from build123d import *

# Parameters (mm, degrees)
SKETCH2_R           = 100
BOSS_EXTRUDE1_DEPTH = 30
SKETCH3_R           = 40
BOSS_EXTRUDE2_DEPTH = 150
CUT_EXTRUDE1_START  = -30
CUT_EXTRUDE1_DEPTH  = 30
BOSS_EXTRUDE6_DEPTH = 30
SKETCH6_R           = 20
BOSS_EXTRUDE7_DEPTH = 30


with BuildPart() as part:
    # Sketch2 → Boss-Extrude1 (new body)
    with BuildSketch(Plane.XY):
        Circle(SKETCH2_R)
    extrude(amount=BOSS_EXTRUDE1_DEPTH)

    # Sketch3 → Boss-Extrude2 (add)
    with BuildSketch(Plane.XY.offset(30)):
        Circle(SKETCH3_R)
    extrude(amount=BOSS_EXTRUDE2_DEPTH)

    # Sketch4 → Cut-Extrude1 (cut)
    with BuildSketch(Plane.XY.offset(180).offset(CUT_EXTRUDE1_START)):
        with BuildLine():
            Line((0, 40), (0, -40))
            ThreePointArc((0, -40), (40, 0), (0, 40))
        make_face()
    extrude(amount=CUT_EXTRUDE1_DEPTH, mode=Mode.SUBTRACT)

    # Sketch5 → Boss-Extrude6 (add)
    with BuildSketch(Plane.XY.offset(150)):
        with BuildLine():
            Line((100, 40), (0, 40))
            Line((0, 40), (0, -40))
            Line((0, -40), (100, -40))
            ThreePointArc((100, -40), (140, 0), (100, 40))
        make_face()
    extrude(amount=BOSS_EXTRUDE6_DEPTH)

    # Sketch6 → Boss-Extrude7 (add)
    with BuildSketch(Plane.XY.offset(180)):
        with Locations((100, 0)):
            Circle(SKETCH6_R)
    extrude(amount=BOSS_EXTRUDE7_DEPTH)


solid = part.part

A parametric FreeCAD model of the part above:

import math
import FreeCAD as App
import Part
import Sketcher
from FreeCAD import Vector

doc = App.newDocument("Part")
body = doc.addObject("PartDesign::Body", "Body")

# Sketch on XY plane
sketch1 = body.newObject("Sketcher::SketchObject", "Sketch")
sketch1.AttachmentSupport = (doc.getObject("XY_Plane"), [""])
sketch1.MapMode = "FlatFace"
sketch1.addGeometry(Part.Circle(Vector(0, 0, 0), Vector(0, 0, 1), 100), False)
sketch1.addConstraint([
    Sketcher.Constraint("Coincident", 0, 3, -1, 1),
    Sketcher.Constraint("Diameter", 0, 200.0),
])
pad1 = body.newObject("PartDesign::Pad", "Pad")
pad1.Profile = sketch1
pad1.Length = 30

# Sketch on XY plane
sketch2 = body.newObject("Sketcher::SketchObject", "Sketch001")
sketch2.AttachmentSupport = (doc.getObject("XY_Plane"), [""])
sketch2.MapMode = "FlatFace"
sketch2.AttachmentOffset = App.Placement(Vector(0, 0, 30), App.Rotation())
sketch2.addGeometry(Part.Circle(Vector(0, 0, 0), Vector(0, 0, 1), 40), False)
sketch2.addConstraint([
    Sketcher.Constraint("Coincident", 0, 3, -1, 1),
    Sketcher.Constraint("Diameter", 0, 80.0),
])
pad2 = body.newObject("PartDesign::Pad", "Pad001")
pad2.Profile = sketch2
pad2.Length = 150

# Sketch on XY plane
sketch3 = body.newObject("Sketcher::SketchObject", "Sketch002")
sketch3.AttachmentSupport = (doc.getObject("XY_Plane"), [""])
sketch3.MapMode = "FlatFace"
sketch3.AttachmentOffset = App.Placement(Vector(0, 0, 150), App.Rotation())
sketch3.addGeometry([
    Part.LineSegment(Vector(0, 40, 0), Vector(0, -40, 0)),
    Part.ArcOfCircle(Part.Circle(Vector(0, 0, 0), Vector(0, 0, 1), 40), math.radians(-90), math.radians(90)),
], False)
sketch3.addConstraint([
    Sketcher.Constraint("Coincident", 0, 1, 1, 2),
    Sketcher.Constraint("Coincident", 1, 1, 0, 2),
    Sketcher.Constraint("Vertical", 0),
    Sketcher.Constraint("Coincident", 1, 3, -1, 1),
    Sketcher.Constraint("PointOnObject", 0, 1, -2),
    Sketcher.Constraint("Radius", 1, 40.0),
])
pocket1 = body.newObject("PartDesign::Pocket", "Pocket")
pocket1.Profile = sketch3
pocket1.Length = 30
pocket1.Reversed = True

# Sketch on XY plane
sketch4 = body.newObject("Sketcher::SketchObject", "Sketch003")
sketch4.AttachmentSupport = (doc.getObject("XY_Plane"), [""])
sketch4.MapMode = "FlatFace"
sketch4.AttachmentOffset = App.Placement(Vector(0, 0, 150), App.Rotation())
sketch4.addGeometry([
    Part.LineSegment(Vector(100, 40, 0), Vector(0, 40, 0)),
    Part.LineSegment(Vector(0, 40, 0), Vector(0, -40, 0)),
    Part.LineSegment(Vector(0, -40, 0), Vector(100, -40, 0)),
    Part.ArcOfCircle(Part.Circle(Vector(100, 0, 0), Vector(0, 0, 1), 40), math.radians(-90), math.radians(90)),
], False)
sketch4.addConstraint([
    Sketcher.Constraint("Coincident", 0, 2, 1, 1),
    Sketcher.Constraint("Coincident", 1, 2, 2, 1),
    Sketcher.Constraint("Tangent", 2, 2, 3, 1),
    Sketcher.Constraint("Tangent", 3, 2, 0, 1),
    Sketcher.Constraint("Horizontal", 0),
    Sketcher.Constraint("Vertical", 1),
    Sketcher.Constraint("Horizontal", 2),
    Sketcher.Constraint("Symmetric", 0, 2, 1, 2, -1, 1),
    Sketcher.Constraint("Radius", 3, 40.0),
    Sketcher.Constraint("DistanceX", 0, 2, 0, 1, 100.0),
])
pad3 = body.newObject("PartDesign::Pad", "Pad002")
pad3.Profile = sketch4
pad3.Length = 30

# Sketch on XY plane
sketch5 = body.newObject("Sketcher::SketchObject", "Sketch004")
sketch5.AttachmentSupport = (doc.getObject("XY_Plane"), [""])
sketch5.MapMode = "FlatFace"
sketch5.AttachmentOffset = App.Placement(Vector(0, 0, 180), App.Rotation())
sketch5.addGeometry(Part.Circle(Vector(100, 0, 0), Vector(0, 0, 1), 20), False)
sketch5.addConstraint([
    Sketcher.Constraint("PointOnObject", 0, 3, -1),
    Sketcher.Constraint("Diameter", 0, 40.0),
    Sketcher.Constraint("DistanceX", -1, 1, 0, 3, 100.0),
])
pad4 = body.newObject("PartDesign::Pad", "Pad003")
pad4.Profile = sketch5
pad4.Length = 30

doc.recompute()
